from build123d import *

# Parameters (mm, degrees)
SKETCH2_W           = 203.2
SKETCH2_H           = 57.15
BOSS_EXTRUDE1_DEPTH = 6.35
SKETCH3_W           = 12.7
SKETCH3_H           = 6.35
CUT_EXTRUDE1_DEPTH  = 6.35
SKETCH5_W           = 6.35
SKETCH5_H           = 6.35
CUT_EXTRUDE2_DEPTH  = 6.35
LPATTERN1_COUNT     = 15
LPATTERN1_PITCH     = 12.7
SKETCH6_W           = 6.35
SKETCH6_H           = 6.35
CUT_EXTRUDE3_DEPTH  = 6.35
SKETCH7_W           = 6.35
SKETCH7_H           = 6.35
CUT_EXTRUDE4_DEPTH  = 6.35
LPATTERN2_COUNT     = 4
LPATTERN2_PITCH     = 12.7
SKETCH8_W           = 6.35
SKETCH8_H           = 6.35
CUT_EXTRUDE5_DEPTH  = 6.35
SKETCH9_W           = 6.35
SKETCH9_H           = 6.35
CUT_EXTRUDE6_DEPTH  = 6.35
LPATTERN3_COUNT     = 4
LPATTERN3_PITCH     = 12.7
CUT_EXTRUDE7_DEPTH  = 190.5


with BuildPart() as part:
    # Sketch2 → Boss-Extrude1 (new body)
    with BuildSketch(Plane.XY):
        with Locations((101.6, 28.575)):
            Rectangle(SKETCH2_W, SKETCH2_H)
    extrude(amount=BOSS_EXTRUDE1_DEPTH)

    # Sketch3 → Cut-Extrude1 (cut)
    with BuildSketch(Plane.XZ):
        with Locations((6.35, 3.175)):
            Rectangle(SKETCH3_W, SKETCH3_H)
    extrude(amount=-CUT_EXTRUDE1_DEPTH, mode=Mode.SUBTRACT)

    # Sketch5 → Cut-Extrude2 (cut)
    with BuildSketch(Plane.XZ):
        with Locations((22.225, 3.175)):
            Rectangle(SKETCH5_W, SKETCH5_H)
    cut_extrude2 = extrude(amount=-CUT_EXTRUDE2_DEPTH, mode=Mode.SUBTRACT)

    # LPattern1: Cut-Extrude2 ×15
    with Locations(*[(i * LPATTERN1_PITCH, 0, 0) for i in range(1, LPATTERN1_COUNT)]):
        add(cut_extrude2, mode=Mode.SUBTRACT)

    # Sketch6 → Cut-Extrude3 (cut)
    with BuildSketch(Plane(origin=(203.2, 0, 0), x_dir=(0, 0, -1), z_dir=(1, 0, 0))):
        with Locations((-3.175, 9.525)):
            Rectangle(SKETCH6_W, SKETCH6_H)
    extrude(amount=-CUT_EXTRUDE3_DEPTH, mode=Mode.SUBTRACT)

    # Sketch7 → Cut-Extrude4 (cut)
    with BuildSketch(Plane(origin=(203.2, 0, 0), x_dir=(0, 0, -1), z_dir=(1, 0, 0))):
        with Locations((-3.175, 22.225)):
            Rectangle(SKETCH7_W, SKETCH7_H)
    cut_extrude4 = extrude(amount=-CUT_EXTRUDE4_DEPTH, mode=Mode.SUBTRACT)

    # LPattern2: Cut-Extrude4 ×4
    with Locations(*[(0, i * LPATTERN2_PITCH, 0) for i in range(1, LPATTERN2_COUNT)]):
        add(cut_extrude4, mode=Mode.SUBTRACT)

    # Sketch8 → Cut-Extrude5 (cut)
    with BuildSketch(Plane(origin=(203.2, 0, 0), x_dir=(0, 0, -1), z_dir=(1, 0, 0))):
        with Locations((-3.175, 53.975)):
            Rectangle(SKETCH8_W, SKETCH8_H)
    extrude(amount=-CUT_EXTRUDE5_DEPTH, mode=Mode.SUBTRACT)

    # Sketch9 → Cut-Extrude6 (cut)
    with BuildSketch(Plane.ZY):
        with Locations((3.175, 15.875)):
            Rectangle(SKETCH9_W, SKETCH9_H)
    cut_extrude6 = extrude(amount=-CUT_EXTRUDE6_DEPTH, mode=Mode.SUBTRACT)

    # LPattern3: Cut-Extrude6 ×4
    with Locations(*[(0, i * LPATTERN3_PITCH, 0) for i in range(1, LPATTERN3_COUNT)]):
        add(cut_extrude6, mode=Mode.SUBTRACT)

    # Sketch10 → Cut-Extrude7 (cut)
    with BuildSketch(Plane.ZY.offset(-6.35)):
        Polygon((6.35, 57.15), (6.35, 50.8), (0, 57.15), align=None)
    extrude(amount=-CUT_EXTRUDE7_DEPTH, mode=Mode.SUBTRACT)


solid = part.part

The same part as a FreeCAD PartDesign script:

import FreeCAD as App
import Part
import Sketcher

V = App.Vector
Q = App.Units.Quantity


def add_polygon(sketch, points):
    """Adds a closed chain of lines whose ends are joined by coincident constraints."""
    first, n = sketch.GeometryCount, len(points)
    for a, b in zip(points, points[1:] + points[:1]):
        sketch.addGeometry(Part.LineSegment(App.Vector(*a, 0), App.Vector(*b, 0)), False)
    for i in range(n):
        sketch.addConstraint(Sketcher.Constraint("Coincident", first + i, 2, first + (i + 1) % n, 1))

doc = App.newDocument("Part")
body = doc.addObject("PartDesign::Body", "Body")

# Sketch on XY plane
sketch1 = body.newObject("Sketcher::SketchObject", "Sketch")
sketch1.AttachmentSupport = (doc.getObject("XY_Plane"), [""])
sketch1.MapMode = "FlatFace"
add_polygon(sketch1, [(0, 57), (0, 0), (203, 0), (203, 57)])  # lines 0-3
sketch1.addConstraint([
    Sketcher.Constraint("Vertical", 0),
    Sketcher.Constraint("Horizontal", 1),
    Sketcher.Constraint("Vertical", 2),
    Sketcher.Constraint("Horizontal", 3),
    Sketcher.Constraint("Coincident", 0, 2, -1, 1),
    Sketcher.Constraint("DistanceX", 1, 1, 1, 2, Q("8 in")),
    Sketcher.Constraint("DistanceY", 0, 2, 0, 1, Q("2.25 in")),
])
pad1 = body.newObject("PartDesign::Pad", "Pad")
pad1.Profile = sketch1
pad1.Length = Q("0.25 in")

# Sketch on XZ plane
sketch2 = body.newObject("Sketcher::SketchObject", "Sketch001")
sketch2.AttachmentSupport = (doc.getObject("XZ_Plane"), [""])
sketch2.MapMode = "FlatFace"
add_polygon(sketch2, [(0, 6), (0, 0), (13, 0), (13, 6)])  # lines 0-3
sketch2.addConstraint([
    Sketcher.Constraint("Vertical", 0),
    Sketcher.Constraint("Horizontal", 1),
    Sketcher.Constraint("Vertical", 2),
    Sketcher.Constraint("Horizontal", 3),
    Sketcher.Constraint("Coincident", 0, 2, -1, 1),
    Sketcher.Constraint("DistanceX", 1, 1, 1, 2, Q("0.5 in")),
    Sketcher.Constraint("DistanceY", 0, 2, 0, 1, Q("0.25 in")),
])
pocket1 = body.newObject("PartDesign::Pocket", "Pocket")
pocket1.Profile = sketch2
pocket1.Length = Q("0.25 in")

# Sketch on XZ plane
sketch3 = body.newObject("Sketcher::SketchObject", "Sketch002")
sketch3.AttachmentSupport = (doc.getObject("XZ_Plane"), [""])
sketch3.MapMode = "FlatFace"
add_polygon(sketch3, [(19, 6), (19, 0), (25, 0), (25, 6)])  # lines 0-3
sketch3.addConstraint([
    Sketcher.Constraint("Vertical", 0),
    Sketcher.Constraint("Horizontal", 1),
    Sketcher.Constraint("Vertical", 2),
    Sketcher.Constraint("Horizontal", 3),
    Sketcher.Constraint("PointOnObject", 0, 2, -1),
    Sketcher.Constraint("Equal", 3, 0),
    Sketcher.Constraint("DistanceX", -1, 1, 1, 2, Q("1 in")),
    Sketcher.Constraint("DistanceX", 1, 1, 1, 2, Q("0.25 in")),
])
pocket2 = body.newObject("PartDesign::Pocket", "Pocket001")
pocket2.Profile = sketch3
pocket2.Length = Q("0.25 in")
doc.recompute()

linearpattern = body.newObject("PartDesign::LinearPattern", "LinearPattern")
linearpattern.Originals = [pocket2]
linearpattern.Direction = (doc.getObject("X_Axis"), [""])
linearpattern.Mode = "offset"
linearpattern.Offset = Q("0.5 in")
linearpattern.Occurrences = 15
body.Tip = linearpattern

# Sketch on YZ plane
sketch4 = body.newObject("Sketcher::SketchObject", "Sketch003")
sketch4.AttachmentSupport = (doc.getObject("YZ_Plane"), [""])
sketch4.MapMode = "FlatFace"
sketch4.AttachmentOffset = App.Placement(V(0, 0, 8 * 25.4), App.Rotation())
add_polygon(sketch4, [(13, 6), (6, 6), (6, 0), (13, 0)])  # lines 0-3
sketch4.addConstraint([
    Sketcher.Constraint("Horizontal", 0),
    Sketcher.Constraint("Vertical", 1),
    Sketcher.Constraint("Horizontal", 2),
    Sketcher.Constraint("Vertical", 3),
    Sketcher.Constraint("PointOnObject", 1, 2, -1),
    Sketcher.Constraint("Equal", 2, 1),
    Sketcher.Constraint("DistanceX", 0, 2, 0, 1, Q("0.25 in")),
    Sketcher.Constraint("DistanceX", -1, 1, 2, 2, Q("0.5 in")),
])
pocket3 = body.newObject("PartDesign::Pocket", "Pocket002")
pocket3.Profile = sketch4
pocket3.Length = Q("0.25 in")

# Sketch on YZ plane
sketch5 = body.newObject("Sketcher::SketchObject", "Sketch004")
sketch5.AttachmentSupport = (doc.getObject("YZ_Plane"), [""])
sketch5.MapMode = "FlatFace"
sketch5.AttachmentOffset = App.Placement(V(0, 0, 8 * 25.4), App.Rotation())
add_polygon(sketch5, [(25, 6), (19, 6), (19, 0), (25, 0)])  # lines 0-3
sketch5.addConstraint([
    Sketcher.Constraint("Horizontal", 0),
    Sketcher.Constraint("Vertical", 1),
    Sketcher.Constraint("Horizontal", 2),
    Sketcher.Constraint("Vertical", 3),
    Sketcher.Constraint("PointOnObject", 1, 2, -1),
    Sketcher.Constraint("Equal", 2, 1),
    Sketcher.Constraint("DistanceX", -1, 1, 2, 2, Q("1 in")),
    Sketcher.Constraint("DistanceX", 0, 2, 0, 1, Q("0.25 in")),
])
pocket4 = body.newObject("PartDesign::Pocket", "Pocket003")
pocket4.Profile = sketch5
pocket4.Length = Q("0.25 in")
doc.recompute()

linearpattern2 = body.newObject("PartDesign::LinearPattern", "LinearPattern001")
linearpattern2.Originals = [pocket4]
linearpattern2.Direction = (doc.getObject("Y_Axis"), [""])
linearpattern2.Mode = "offset"
linearpattern2.Offset = Q("0.5 in")
linearpattern2.Occurrences = 4
body.Tip = linearpattern2

# Sketch on YZ plane
sketch6 = body.newObject("Sketcher::SketchObject", "Sketch005")
sketch6.AttachmentSupport = (doc.getObject("YZ_Plane"), [""])
sketch6.MapMode = "FlatFace"
sketch6.AttachmentOffset = App.Placement(V(0, 0, 8 * 25.4), App.Rotation())
add_polygon(sketch6, [(57, 6), (51, 6), (51, 0), (57, 0)])  # lines 0-3
sketch6.addConstraint([
    Sketcher.Constraint("Horizontal", 0),
    Sketcher.Constraint("Vertical", 1),
    Sketcher.Constraint("Horizontal", 2),
    Sketcher.Constraint("Vertical", 3),
    Sketcher.Constraint("PointOnObject", 1, 2, -1),
    Sketcher.Constraint("Equal", 2, 1),
    Sketcher.Constraint("DistanceX", -1, 1, 0, 2, Q("2 in")),
    Sketcher.Constraint("DistanceX", 0, 2, 0, 1, Q("0.25 in")),
])
pocket5 = body.newObject("PartDesign::Pocket", "Pocket004")
pocket5.Profile = sketch6
pocket5.Length = Q("0.25 in")

# Sketch on YZ plane
sketch7 = body.newObject("Sketcher::SketchObject", "Sketch006")
sketch7.AttachmentSupport = (doc.getObject("YZ_Plane"), [""])
sketch7.MapMode = "FlatFace"
add_polygon(sketch7, [(19, 0), (13, 0), (13, 6), (19, 6)])  # lines 0-3
sketch7.addConstraint([
    Sketcher.Constraint("Horizontal", 0),
    Sketcher.Constraint("Vertical", 1),
    Sketcher.Constraint("Horizontal", 2),
    Sketcher.Constraint("Vertical", 3),
    Sketcher.Constraint("PointOnObject", 0, 2, -1),
    Sketcher.Constraint("Equal", 2, 1),
    Sketcher.Constraint("DistanceX", 0, 2, 0, 1, Q("0.25 in")),
    Sketcher.Constraint("DistanceX", -1, 1, 0, 2, Q("0.5 in")),
])
pocket6 = body.newObject("PartDesign::Pocket", "Pocket005")
pocket6.Profile = sketch7
pocket6.Length = Q("0.25 in")
pocket6.Reversed = True
doc.recompute()

linearpattern3 = body.newObject("PartDesign::LinearPattern", "LinearPattern002")
linearpattern3.Originals = [pocket6]
linearpattern3.Direction = (doc.getObject("Y_Axis"), [""])
linearpattern3.Mode = "offset"
linearpattern3.Offset = Q("0.5 in")
linearpattern3.Occurrences = 4
body.Tip = linearpattern3

# Sketch on YZ plane
sketch8 = body.newObject("Sketcher::SketchObject", "Sketch007")
sketch8.AttachmentSupport = (doc.getObject("YZ_Plane"), [""])
sketch8.MapMode = "FlatFace"
sketch8.AttachmentOffset = App.Placement(V(0, 0, 0.25 * 25.4), App.Rotation())
add_polygon(sketch8, [(51, 6), (57, 6), (57, 0)])  # lines 0-2
sketch8.addConstraint([
    Sketcher.Constraint("Horizontal", 0),
    Sketcher.Constraint("Vertical", 1),
    Sketcher.Constraint("PointOnObject", 1, 2, -1),
    Sketcher.Constraint("Equal", 0, 1),
    Sketcher.Constraint("DistanceX", -1, 1, 2, 2, Q("2 in")),
    Sketcher.Constraint("DistanceX", 0, 1, 0, 2, Q("0.25 in")),
])
pocket7 = body.newObject("PartDesign::Pocket", "Pocket006")
pocket7.Profile = sketch8
pocket7.Length = Q("7.5 in")
pocket7.Reversed = True

doc.recompute()
